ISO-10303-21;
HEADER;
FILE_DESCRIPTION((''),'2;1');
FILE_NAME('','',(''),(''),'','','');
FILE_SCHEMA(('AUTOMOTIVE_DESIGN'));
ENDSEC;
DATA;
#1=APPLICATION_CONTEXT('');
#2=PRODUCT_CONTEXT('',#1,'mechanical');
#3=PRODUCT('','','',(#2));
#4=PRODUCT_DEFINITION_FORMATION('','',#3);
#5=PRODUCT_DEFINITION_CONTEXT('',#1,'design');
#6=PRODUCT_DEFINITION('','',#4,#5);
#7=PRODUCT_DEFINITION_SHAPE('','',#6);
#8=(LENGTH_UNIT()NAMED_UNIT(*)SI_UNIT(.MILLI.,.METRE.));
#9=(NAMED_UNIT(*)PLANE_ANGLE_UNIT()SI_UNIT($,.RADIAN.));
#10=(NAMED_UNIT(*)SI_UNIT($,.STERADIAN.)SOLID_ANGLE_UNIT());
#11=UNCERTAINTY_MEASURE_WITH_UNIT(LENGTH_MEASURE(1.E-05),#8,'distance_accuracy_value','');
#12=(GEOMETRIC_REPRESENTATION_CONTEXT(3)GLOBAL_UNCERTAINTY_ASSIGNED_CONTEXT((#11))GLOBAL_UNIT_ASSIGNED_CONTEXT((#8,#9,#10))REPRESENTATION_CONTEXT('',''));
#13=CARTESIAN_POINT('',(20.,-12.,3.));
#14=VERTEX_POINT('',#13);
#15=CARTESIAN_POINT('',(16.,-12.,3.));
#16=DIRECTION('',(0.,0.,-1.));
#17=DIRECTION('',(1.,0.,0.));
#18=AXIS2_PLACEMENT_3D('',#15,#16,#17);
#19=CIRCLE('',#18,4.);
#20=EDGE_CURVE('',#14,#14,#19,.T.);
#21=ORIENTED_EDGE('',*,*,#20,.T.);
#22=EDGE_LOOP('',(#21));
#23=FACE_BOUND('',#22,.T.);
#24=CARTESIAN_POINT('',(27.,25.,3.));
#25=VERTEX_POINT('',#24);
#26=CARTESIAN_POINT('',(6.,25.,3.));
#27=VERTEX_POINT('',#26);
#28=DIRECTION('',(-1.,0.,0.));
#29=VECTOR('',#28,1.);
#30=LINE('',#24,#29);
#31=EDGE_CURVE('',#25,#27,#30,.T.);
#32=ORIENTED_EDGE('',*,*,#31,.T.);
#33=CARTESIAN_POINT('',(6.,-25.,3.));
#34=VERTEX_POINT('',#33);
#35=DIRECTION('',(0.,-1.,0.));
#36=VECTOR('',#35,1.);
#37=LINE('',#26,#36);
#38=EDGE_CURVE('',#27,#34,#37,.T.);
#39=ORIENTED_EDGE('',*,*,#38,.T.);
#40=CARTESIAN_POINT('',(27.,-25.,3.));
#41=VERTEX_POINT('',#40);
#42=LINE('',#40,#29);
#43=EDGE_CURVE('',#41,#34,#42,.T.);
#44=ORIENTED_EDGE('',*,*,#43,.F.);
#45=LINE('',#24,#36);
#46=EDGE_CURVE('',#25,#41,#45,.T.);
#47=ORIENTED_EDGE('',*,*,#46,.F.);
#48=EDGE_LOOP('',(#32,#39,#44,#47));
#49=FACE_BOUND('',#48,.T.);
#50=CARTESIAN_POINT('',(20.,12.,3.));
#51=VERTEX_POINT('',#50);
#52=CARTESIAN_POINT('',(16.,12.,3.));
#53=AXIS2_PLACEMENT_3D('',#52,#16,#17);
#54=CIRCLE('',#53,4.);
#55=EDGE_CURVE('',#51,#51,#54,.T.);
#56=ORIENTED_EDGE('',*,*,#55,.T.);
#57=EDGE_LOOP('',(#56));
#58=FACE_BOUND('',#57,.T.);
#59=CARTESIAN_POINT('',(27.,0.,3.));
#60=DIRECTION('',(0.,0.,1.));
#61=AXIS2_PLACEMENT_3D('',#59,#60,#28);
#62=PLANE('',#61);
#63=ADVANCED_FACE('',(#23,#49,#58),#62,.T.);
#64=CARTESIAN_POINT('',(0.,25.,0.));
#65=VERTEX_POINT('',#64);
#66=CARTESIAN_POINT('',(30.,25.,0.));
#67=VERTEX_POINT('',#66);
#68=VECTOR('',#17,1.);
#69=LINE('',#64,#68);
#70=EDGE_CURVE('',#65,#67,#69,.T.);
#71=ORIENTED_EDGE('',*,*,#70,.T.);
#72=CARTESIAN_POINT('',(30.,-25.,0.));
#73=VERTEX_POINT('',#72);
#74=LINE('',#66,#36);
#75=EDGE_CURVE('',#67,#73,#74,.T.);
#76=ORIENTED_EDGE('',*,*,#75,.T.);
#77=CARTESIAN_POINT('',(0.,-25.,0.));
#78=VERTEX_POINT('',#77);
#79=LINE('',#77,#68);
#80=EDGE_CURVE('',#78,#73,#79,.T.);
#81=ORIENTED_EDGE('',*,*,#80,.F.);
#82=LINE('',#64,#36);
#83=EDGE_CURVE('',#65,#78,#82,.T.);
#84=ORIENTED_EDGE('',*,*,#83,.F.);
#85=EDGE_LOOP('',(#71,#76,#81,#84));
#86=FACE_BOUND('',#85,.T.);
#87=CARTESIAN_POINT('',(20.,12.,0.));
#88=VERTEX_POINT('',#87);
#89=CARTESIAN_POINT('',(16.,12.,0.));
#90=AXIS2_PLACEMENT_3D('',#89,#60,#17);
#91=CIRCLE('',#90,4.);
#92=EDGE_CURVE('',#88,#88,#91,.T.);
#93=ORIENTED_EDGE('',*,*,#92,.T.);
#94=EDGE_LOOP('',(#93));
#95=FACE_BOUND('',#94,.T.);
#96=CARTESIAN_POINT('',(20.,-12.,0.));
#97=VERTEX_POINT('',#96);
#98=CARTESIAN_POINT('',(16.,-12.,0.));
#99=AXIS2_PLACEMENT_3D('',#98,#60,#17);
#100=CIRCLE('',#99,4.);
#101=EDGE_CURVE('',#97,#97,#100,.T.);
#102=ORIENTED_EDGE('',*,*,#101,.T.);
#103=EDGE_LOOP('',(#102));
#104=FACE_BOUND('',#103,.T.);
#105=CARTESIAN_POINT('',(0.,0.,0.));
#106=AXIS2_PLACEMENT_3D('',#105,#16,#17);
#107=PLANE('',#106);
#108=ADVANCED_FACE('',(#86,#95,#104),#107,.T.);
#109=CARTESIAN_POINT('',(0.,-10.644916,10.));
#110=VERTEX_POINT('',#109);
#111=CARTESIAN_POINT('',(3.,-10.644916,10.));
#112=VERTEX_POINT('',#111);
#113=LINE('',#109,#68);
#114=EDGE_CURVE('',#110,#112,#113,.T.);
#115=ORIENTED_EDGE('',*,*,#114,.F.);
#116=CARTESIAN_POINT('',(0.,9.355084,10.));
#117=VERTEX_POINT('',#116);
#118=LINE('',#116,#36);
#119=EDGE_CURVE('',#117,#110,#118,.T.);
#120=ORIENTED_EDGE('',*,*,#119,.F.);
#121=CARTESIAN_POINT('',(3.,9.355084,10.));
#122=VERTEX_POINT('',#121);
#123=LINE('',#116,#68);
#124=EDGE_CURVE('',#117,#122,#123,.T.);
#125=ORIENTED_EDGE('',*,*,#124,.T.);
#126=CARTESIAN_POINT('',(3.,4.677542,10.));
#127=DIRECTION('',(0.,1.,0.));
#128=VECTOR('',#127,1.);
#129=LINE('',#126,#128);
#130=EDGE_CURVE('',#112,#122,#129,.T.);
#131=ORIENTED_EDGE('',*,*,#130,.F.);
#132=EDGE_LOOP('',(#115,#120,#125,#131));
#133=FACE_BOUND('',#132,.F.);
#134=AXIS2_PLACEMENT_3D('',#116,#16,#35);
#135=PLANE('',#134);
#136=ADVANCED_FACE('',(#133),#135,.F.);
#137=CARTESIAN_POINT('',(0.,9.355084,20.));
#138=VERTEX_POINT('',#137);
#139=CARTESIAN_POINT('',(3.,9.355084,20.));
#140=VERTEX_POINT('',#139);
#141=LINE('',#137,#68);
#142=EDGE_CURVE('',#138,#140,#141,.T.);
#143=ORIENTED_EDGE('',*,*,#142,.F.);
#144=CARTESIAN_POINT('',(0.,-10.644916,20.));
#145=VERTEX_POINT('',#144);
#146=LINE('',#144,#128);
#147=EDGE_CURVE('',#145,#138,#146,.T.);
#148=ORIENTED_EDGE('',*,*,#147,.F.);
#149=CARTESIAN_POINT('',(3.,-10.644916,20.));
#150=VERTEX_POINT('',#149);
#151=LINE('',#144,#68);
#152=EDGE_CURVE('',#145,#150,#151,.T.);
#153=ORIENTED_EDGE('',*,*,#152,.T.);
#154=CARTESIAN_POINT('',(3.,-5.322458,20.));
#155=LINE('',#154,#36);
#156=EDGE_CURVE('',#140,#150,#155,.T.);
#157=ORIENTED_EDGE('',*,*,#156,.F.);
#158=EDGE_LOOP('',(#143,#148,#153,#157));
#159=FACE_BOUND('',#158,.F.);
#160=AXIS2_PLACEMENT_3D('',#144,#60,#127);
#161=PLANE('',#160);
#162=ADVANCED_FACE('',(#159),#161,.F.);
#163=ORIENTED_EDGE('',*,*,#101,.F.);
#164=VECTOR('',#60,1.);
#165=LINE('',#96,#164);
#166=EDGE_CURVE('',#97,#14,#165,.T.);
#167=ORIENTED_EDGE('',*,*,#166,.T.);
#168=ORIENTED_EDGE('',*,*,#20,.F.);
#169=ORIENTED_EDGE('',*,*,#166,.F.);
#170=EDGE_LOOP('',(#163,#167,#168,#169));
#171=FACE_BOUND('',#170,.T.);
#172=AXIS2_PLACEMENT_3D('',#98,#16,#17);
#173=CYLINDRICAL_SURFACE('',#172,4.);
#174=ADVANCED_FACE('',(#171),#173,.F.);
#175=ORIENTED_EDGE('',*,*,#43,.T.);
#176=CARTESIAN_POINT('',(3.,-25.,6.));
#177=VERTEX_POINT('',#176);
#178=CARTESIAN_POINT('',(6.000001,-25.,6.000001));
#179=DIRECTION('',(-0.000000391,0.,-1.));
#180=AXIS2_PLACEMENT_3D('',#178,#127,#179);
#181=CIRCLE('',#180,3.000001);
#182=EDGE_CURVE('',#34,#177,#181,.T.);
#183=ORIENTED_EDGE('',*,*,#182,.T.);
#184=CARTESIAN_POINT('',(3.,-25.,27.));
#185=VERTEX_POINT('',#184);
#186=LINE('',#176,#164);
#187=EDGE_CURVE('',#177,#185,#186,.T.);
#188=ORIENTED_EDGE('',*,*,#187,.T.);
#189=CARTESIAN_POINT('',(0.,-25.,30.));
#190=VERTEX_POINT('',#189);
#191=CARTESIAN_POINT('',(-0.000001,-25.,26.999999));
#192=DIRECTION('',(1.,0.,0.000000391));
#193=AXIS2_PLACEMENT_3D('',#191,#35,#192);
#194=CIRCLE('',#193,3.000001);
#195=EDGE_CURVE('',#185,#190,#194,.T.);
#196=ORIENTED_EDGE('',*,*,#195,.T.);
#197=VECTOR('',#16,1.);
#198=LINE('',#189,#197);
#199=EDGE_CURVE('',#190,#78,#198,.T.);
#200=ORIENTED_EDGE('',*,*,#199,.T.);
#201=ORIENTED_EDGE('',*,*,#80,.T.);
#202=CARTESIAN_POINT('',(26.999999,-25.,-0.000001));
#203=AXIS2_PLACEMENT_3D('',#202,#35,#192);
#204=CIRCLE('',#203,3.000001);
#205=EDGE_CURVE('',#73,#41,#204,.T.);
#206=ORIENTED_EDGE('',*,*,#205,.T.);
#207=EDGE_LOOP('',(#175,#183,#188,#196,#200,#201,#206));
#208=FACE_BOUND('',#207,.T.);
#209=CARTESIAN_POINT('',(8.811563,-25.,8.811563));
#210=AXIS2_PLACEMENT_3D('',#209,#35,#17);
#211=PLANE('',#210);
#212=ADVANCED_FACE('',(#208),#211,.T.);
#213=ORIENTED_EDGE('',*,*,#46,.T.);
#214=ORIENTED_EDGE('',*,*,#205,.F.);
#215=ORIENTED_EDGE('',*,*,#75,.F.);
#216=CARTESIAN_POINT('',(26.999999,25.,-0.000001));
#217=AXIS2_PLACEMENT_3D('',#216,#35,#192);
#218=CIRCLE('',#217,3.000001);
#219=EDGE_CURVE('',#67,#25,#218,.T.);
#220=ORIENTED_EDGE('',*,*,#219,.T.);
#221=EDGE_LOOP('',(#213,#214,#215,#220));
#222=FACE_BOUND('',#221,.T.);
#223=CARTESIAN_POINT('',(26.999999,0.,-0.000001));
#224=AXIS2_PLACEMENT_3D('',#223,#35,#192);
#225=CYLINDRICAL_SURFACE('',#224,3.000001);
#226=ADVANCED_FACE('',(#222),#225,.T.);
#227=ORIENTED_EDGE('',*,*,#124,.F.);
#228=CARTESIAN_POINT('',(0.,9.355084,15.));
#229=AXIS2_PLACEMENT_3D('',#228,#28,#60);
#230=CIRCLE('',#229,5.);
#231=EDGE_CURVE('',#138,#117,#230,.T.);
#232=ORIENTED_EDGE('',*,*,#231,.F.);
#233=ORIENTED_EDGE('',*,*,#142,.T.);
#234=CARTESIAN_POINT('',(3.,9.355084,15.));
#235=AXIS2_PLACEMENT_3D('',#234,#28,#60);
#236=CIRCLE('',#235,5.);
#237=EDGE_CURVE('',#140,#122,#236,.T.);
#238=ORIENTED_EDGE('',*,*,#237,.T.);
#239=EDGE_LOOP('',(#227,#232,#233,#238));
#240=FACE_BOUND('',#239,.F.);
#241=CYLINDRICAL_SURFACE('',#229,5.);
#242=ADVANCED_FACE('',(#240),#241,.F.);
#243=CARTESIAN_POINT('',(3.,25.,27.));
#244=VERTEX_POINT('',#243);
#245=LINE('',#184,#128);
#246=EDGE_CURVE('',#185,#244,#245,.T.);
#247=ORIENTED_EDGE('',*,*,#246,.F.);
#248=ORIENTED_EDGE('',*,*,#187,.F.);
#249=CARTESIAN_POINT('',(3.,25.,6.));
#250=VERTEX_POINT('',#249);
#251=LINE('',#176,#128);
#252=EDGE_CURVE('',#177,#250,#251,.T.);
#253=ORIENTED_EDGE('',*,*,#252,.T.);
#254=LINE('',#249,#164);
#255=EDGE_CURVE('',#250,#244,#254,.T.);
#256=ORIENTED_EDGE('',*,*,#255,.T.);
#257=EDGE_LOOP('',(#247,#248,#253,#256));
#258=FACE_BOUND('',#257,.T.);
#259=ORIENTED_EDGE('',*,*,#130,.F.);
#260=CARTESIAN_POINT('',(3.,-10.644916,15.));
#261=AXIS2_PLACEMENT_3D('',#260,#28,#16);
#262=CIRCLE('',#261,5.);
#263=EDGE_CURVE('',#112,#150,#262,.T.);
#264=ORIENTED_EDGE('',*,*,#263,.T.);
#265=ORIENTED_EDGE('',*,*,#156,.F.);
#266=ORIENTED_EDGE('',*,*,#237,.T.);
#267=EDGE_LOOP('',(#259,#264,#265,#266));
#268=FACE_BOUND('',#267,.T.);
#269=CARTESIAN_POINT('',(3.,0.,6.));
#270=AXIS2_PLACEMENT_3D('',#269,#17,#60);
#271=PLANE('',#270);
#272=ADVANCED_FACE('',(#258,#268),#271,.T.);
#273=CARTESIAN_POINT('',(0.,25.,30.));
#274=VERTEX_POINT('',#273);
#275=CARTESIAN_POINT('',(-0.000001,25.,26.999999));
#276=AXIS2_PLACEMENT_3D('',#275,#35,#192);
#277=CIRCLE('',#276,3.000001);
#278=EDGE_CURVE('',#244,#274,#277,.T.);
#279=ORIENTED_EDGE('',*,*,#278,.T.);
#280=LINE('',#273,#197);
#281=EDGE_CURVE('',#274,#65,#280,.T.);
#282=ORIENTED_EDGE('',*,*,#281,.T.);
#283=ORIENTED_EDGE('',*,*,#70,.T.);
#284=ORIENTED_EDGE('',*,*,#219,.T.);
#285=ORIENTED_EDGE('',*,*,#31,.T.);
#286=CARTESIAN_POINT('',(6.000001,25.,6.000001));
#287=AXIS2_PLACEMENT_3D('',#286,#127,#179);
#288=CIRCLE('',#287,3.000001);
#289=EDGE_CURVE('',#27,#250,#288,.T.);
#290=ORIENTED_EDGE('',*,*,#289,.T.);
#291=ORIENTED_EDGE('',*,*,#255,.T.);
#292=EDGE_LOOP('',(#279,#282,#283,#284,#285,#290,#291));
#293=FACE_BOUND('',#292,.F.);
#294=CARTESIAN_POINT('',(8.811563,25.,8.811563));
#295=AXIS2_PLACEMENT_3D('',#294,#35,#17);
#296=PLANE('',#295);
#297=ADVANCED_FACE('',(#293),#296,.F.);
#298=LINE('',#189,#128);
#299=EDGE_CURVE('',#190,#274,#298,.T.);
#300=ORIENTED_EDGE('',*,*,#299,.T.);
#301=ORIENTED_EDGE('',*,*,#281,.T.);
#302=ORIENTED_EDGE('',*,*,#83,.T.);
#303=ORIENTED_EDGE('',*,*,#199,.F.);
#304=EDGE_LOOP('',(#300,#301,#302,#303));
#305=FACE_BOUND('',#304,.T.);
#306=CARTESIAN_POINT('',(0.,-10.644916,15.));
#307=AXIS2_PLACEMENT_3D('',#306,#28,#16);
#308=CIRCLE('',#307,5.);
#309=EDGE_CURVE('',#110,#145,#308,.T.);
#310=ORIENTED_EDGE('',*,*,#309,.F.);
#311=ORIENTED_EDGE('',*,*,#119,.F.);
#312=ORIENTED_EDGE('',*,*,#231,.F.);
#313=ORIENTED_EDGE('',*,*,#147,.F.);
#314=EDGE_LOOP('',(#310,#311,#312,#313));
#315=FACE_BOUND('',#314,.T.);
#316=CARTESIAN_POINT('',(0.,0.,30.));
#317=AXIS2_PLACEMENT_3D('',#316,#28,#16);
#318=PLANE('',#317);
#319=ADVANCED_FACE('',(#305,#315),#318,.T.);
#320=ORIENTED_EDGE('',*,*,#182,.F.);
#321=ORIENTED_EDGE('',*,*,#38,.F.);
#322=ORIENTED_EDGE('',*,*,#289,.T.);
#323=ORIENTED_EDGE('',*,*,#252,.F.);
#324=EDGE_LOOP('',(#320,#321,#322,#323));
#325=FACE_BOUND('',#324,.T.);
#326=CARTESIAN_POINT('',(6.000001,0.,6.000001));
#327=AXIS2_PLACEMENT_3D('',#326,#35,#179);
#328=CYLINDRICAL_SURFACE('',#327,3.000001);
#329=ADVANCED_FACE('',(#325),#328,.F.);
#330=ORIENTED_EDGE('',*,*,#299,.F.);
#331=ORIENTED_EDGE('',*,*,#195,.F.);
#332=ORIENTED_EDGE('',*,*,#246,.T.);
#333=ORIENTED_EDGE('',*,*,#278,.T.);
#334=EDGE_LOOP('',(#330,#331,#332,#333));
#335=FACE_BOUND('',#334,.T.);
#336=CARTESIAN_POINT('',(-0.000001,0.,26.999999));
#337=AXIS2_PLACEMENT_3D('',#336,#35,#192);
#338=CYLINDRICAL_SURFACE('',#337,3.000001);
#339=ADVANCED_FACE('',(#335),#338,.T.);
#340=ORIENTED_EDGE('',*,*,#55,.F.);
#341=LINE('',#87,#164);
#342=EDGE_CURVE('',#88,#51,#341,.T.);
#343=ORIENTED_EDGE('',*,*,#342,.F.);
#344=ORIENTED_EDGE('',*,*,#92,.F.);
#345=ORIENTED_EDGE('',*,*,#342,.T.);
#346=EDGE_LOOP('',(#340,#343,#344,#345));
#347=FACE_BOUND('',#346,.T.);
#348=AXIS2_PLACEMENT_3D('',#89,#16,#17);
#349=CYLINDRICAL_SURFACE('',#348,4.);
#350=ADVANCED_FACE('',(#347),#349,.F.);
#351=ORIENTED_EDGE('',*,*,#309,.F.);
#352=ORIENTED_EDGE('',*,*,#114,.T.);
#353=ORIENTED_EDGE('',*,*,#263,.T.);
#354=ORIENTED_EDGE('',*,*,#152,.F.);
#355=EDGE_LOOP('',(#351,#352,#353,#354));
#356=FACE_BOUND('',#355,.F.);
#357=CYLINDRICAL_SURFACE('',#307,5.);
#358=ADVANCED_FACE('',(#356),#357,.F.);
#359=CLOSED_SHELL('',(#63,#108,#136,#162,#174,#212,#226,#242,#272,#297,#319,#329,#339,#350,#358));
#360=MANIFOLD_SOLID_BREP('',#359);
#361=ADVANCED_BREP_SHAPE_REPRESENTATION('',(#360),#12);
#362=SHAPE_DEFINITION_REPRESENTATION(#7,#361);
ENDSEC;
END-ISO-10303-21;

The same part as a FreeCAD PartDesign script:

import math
import FreeCAD as App
import Part
import Sketcher

doc = App.newDocument("Part")
body = doc.addObject("PartDesign::Body", "Body")

sketch1 = body.newObject("Sketcher::SketchObject", "Sketch")
sketch1.AttachmentSupport = (doc.getObject("XZ_Plane"), [""])
sketch1.MapMode = "FlatFace"
sketch1.addGeometry(Part.LineSegment(App.Vector(0, 30, 0), App.Vector(0, 0, 0)), False)
sketch1.addGeometry(Part.LineSegment(App.Vector(0, 0, 0), App.Vector(30, 0, 0)), False)
sketch1.addGeometry(Part.ArcOfCircle(Part.Circle(App.Vector(26.999999, -0.000001, 0), App.Vector(0, 0, 1), 3.000001), math.radians(0.000022), math.radians(89.999978)), False)
sketch1.addGeometry(Part.LineSegment(App.Vector(27, 3, 0), App.Vector(6, 3, 0)), False)
sketch1.addGeometry(Part.ArcOfCircle(Part.Circle(App.Vector(6.000001, 6.000001, 0), App.Vector(0, 0, 1), 3.000001), math.radians(-179.999978), math.radians(-90.000022)), False)
sketch1.addGeometry(Part.LineSegment(App.Vector(3, 6, 0), App.Vector(3, 27, 0)), False)
sketch1.addGeometry(Part.ArcOfCircle(Part.Circle(App.Vector(-0.000001, 26.999999, 0), App.Vector(0, 0, 1), 3.000001), math.radians(0.000022), math.radians(89.999978)), False)
sketch1.addConstraint(Sketcher.Constraint("Coincident", 0, 2, 1, 1))
sketch1.addConstraint(Sketcher.Constraint("Coincident", 1, 2, 2, 1))
sketch1.addConstraint(Sketcher.Constraint("Tangent", 2, 2, 3, 1))
sketch1.addConstraint(Sketcher.Constraint("Tangent", 3, 2, 4, 2))
sketch1.addConstraint(Sketcher.Constraint("Tangent", 4, 1, 5, 1))
sketch1.addConstraint(Sketcher.Constraint("Tangent", 5, 2, 6, 1))
sketch1.addConstraint(Sketcher.Constraint("Coincident", 6, 2, 0, 1))
sketch1.addConstraint(Sketcher.Constraint("Vertical", 0))
sketch1.addConstraint(Sketcher.Constraint("Horizontal", 1))
sketch1.addConstraint(Sketcher.Constraint("Horizontal", 3))
sketch1.addConstraint(Sketcher.Constraint("Vertical", 5))
sketch1.addConstraint(Sketcher.Constraint("Coincident", 0, 2, -1, 1))
sketch1.addConstraint(Sketcher.Constraint("Equal", 2, 4))
sketch1.addConstraint(Sketcher.Constraint("Equal", 4, 6))
sketch1.addConstraint(Sketcher.Constraint("PointOnObject", 2, 3, -1))
sketch1.addConstraint(Sketcher.Constraint("PointOnObject", 6, 3, -2))
sketch1.addConstraint(Sketcher.Constraint("Equal", 1, 0))
sketch1.addConstraint(Sketcher.Constraint("Radius", 2, 3.000001))
sketch1.addConstraint(Sketcher.Constraint("DistanceX", 1, 1, 1, 2, 30.0))
pad1 = body.newObject("PartDesign::Pad", "Pad")
pad1.Profile = sketch1
pad1.Type = "TwoLengths"
pad1.Length = 25
pad1.Length2 = 25

sketch2 = body.newObject("Sketcher::SketchObject", "Sketch001")
sketch2.AttachmentSupport = (doc.getObject("XY_Plane"), [""])
sketch2.MapMode = "FlatFace"
sketch2.addGeometry(Part.Circle(App.Vector(16, -12, 0), App.Vector(0, 0, 1), 4), False)
sketch2.addGeometry(Part.Circle(App.Vector(16, 12, 0), App.Vector(0, 0, 1), 4), False)
sketch2.addConstraint(Sketcher.Constraint("Equal", 0, 1))
sketch2.addConstraint(Sketcher.Constraint("Symmetric", 0, 3, 1, 3, -1))
sketch2.addConstraint(Sketcher.Constraint("Diameter", 0, 8.0))
sketch2.addConstraint(Sketcher.Constraint("DistanceX", -1, 1, 0, 3, 16.0))
sketch2.addConstraint(Sketcher.Constraint("DistanceY", 0, 3, -1, 1, 12.0))
pocket1 = body.newObject("PartDesign::Pocket", "Pocket")
pocket1.Profile = sketch2
pocket1.Length = 25
pocket1.Reversed = True

sketch3 = body.newObject("Sketcher::SketchObject", "Sketch002")
sketch3.AttachmentSupport = (doc.getObject("YZ_Plane"), [""])
sketch3.MapMode = "FlatFace"
sketch3.addGeometry(Part.ArcOfCircle(Part.Circle(App.Vector(9.355084, 15, 0), App.Vector(0, 0, 1), 5), math.radians(-90), math.radians(90)), False)
sketch3.addGeometry(Part.LineSegment(App.Vector(9.355084, 10, 0), App.Vector(-10.644916, 10, 0)), False)
sketch3.addGeometry(Part.ArcOfCircle(Part.Circle(App.Vector(-10.644916, 15, 0), App.Vector(0, 0, 1), 5), math.radians(90), math.radians(270)), False)
sketch3.addGeometry(Part.LineSegment(App.Vector(-10.644916, 20, 0), App.Vector(9.355084, 20, 0)), False)
sketch3.addConstraint(Sketcher.Constraint("Tangent", 0, 1, 1, 1))
sketch3.addConstraint(Sketcher.Constraint("Tangent", 1, 2, 2, 2))
sketch3.addConstraint(Sketcher.Constraint("Tangent", 2, 1, 3, 1))
sketch3.addConstraint(Sketcher.Constraint("Tangent", 3, 2, 0, 2))
sketch3.addConstraint(Sketcher.Constraint("Horizontal", 1))
sketch3.addConstraint(Sketcher.Constraint("Horizontal", 3))
sketch3.addConstraint(Sketcher.Constraint("Radius", 0, 5.0))
sketch3.addConstraint(Sketcher.Constraint("DistanceX", 1, 2, 1, 1, 20.0))
sketch3.addConstraint(Sketcher.Constraint("DistanceY", -1, 1, 0, 3, 15.0))
sketch3.addConstraint(Sketcher.Constraint("DistanceX", -1, 1, 0, 3, 9.355084))
pocket2 = body.newObject("PartDesign::Pocket", "Pocket001")
pocket2.Profile = sketch3
pocket2.Length = 25
pocket2.Reversed = True

doc.recompute()
